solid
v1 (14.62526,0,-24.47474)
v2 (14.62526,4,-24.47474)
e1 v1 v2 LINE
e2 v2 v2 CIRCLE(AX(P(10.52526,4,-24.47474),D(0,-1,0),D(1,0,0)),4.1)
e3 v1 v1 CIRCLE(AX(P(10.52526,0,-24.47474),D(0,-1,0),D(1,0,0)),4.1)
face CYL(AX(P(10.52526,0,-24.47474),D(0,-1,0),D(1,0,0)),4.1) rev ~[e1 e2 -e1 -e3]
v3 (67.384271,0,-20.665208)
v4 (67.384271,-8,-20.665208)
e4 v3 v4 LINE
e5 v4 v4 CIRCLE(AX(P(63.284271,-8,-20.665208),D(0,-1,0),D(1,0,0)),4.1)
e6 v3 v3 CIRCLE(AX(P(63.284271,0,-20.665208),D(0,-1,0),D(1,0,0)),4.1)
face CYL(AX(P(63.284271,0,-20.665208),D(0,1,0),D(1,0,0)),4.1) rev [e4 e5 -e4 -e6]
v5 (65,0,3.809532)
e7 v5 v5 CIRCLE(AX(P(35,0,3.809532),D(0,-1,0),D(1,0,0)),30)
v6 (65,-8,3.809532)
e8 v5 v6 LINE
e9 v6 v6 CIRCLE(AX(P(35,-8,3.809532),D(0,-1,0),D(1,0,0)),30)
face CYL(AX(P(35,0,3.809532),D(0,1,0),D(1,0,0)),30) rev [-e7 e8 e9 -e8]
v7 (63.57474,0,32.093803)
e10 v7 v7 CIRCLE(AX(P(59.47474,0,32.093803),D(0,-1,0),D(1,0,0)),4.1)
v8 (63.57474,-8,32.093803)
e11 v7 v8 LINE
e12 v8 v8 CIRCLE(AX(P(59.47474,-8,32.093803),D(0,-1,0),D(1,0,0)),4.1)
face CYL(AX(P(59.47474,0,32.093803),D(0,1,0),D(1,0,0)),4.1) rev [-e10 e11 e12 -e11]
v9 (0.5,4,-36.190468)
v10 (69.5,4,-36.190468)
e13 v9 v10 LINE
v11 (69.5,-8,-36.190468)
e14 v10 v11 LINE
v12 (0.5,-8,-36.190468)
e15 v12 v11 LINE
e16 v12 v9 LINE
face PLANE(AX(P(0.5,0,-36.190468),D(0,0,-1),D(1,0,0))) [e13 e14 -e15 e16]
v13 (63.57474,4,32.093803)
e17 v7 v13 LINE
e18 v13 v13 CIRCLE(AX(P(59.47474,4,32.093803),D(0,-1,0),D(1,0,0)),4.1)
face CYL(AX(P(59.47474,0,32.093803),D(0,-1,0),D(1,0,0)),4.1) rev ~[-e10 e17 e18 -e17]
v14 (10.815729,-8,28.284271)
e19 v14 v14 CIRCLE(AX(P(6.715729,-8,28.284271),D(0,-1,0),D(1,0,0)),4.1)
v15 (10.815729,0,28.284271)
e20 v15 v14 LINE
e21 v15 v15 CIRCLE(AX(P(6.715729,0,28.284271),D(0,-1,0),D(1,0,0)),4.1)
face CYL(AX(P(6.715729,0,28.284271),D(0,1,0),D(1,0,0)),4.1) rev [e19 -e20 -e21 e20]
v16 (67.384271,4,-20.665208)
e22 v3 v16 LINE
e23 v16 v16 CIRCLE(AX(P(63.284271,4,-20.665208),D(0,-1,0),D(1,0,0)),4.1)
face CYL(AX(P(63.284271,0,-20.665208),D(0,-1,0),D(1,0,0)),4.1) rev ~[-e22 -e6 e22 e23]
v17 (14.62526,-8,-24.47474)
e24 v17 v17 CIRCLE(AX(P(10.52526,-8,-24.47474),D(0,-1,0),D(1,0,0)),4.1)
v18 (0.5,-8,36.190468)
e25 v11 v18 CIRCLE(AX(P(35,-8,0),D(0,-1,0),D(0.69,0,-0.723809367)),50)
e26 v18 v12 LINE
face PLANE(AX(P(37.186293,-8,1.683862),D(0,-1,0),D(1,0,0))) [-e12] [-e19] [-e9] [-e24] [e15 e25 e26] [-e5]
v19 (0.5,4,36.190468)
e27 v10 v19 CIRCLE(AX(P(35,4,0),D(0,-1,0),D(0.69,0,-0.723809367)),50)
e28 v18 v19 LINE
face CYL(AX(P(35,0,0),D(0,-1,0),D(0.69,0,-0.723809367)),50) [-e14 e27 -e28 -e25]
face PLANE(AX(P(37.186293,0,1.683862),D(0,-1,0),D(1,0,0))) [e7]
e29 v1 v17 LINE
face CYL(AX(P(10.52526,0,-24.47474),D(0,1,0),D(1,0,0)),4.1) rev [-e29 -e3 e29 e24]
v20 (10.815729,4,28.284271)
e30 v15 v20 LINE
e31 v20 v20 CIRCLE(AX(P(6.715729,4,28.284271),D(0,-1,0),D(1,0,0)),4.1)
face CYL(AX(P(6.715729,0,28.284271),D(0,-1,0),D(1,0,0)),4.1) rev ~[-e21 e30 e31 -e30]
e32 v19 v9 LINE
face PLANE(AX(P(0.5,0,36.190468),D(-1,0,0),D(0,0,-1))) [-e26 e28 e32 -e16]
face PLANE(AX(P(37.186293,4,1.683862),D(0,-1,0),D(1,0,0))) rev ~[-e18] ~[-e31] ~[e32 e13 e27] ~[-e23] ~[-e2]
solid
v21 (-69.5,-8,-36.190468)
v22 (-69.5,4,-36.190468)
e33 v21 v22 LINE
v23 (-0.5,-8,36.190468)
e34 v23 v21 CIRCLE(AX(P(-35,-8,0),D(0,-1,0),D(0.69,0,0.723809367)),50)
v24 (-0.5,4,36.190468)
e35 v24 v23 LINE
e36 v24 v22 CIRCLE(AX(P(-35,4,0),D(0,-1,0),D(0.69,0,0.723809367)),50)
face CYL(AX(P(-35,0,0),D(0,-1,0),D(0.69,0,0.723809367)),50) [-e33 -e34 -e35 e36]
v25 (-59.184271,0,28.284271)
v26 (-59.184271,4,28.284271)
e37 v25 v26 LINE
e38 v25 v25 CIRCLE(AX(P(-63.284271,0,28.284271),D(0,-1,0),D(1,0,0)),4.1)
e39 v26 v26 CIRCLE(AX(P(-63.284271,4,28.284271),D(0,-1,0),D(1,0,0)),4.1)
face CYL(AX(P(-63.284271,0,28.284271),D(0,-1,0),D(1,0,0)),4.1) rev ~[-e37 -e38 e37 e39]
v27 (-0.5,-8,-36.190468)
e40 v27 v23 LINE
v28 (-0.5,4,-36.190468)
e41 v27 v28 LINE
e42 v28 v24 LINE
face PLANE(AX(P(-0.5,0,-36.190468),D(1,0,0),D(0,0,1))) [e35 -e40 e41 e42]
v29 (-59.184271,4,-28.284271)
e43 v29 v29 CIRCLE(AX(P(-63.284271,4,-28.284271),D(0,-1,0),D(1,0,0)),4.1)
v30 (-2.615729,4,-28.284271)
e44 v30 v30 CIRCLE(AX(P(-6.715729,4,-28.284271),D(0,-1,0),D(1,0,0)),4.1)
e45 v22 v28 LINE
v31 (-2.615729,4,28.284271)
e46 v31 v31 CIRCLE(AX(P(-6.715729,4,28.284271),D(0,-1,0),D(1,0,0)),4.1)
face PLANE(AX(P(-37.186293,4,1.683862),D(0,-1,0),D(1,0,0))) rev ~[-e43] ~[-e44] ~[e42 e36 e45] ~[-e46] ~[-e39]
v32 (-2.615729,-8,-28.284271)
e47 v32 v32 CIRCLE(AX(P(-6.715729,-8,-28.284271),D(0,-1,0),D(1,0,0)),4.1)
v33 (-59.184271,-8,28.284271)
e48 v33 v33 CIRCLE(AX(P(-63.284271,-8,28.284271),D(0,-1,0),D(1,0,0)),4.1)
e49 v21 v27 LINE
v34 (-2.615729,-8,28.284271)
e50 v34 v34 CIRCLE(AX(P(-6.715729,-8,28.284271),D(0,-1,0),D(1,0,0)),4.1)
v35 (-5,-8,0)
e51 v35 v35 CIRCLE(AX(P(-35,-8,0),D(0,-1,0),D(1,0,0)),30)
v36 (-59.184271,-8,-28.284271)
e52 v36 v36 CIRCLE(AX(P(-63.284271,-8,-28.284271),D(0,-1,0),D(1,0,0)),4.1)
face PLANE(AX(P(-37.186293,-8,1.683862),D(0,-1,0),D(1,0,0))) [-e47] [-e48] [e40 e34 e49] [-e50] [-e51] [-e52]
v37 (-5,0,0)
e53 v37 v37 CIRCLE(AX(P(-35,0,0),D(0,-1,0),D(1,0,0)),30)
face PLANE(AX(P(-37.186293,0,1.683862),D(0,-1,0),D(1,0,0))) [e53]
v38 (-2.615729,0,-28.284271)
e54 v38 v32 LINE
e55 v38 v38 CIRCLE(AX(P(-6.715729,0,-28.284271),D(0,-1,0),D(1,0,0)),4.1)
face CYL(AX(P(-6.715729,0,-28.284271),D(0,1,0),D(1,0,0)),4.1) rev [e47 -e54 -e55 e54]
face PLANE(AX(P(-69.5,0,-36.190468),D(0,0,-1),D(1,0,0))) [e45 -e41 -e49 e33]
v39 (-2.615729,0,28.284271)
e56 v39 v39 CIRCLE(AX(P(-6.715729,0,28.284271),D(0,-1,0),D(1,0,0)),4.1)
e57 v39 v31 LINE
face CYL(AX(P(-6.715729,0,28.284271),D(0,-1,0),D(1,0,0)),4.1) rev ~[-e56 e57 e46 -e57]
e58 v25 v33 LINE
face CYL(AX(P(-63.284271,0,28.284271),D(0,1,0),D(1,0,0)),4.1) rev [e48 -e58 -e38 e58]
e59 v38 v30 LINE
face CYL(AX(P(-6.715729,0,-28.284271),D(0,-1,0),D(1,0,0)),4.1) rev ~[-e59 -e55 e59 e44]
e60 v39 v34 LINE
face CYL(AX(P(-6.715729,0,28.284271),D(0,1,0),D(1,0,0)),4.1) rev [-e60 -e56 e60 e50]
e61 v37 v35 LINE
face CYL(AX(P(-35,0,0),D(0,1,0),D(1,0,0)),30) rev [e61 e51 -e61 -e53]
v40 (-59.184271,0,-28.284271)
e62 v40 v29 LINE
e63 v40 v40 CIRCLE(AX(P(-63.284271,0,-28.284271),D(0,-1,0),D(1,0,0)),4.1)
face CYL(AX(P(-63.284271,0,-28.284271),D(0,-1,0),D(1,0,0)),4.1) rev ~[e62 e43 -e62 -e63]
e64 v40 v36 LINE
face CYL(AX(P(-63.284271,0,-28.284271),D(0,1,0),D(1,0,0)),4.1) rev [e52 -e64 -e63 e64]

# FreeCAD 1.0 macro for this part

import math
import FreeCAD as App
import Part
import Sketcher
Q = App.Units.Quantity

doc = App.newDocument("Part")
body = doc.addObject("PartDesign::Body", "Body")

# Sketch on XZ plane
sketch1 = body.newObject("Sketcher::SketchObject", "Sketch")
sketch1.AttachmentSupport = (doc.getObject("XZ_Plane"), [""])
sketch1.MapMode = "FlatFace"
sketch1.addGeometry(Part.LineSegment(App.Vector(-0.5, -36.2, 0), App.Vector(-0.5, 36.2, 0)), False)
sketch1.addGeometry(Part.ArcOfCircle(Part.Circle(App.Vector(-35, 0, 0), App.Vector(0, 0, 1), 50), math.radians(46), math.radians(226)), False)
sketch1.addGeometry(Part.LineSegment(App.Vector(-69.5, -36.2, 0), App.Vector(-0.5, -36.2, 0)), False)
sketch1.addGeometry(Part.Circle(App.Vector(-63.3, -28.3, 0), App.Vector(0, 0, 1), 4.1), False)
sketch1.addGeometry(Part.Circle(App.Vector(-6.7, -28.3, 0), App.Vector(0, 0, 1), 4.1), False)
sketch1.addGeometry(Part.Circle(App.Vector(-63.3, 28.3, 0), App.Vector(0, 0, 1), 4.1), False)
sketch1.addGeometry(Part.Circle(App.Vector(-35, 0, 0), App.Vector(0, 0, 1), 30), False)
sketch1.addGeometry(Part.Circle(App.Vector(-6.7, 28.3, 0), App.Vector(0, 0, 1), 4.1), False)
sketch1.addConstraint(Sketcher.Constraint("Coincident", 0, 2, 1, 1))
sketch1.addConstraint(Sketcher.Constraint("Coincident", 1, 2, 2, 1))
sketch1.addConstraint(Sketcher.Constraint("Coincident", 2, 2, 0, 1))
sketch1.addConstraint(Sketcher.Constraint("Vertical", 0))
sketch1.addConstraint(Sketcher.Constraint("Horizontal", 2))
sketch1.addConstraint(Sketcher.Constraint("Coincident", 6, 3, 1, 3))
sketch1.addConstraint(Sketcher.Constraint("Equal", 3, 4))
sketch1.addConstraint(Sketcher.Constraint("Equal", 4, 5))
sketch1.addConstraint(Sketcher.Constraint("Equal", 5, 7))
sketch1.addConstraint(Sketcher.Constraint("Symmetric", 3, 3, 5, 3, -1))
sketch1.addConstraint(Sketcher.Constraint("Symmetric", 4, 3, 7, 3, -1))
sketch1.addConstraint(Sketcher.Constraint("PointOnObject", 1, 3, -1))
sketch1.addConstraint(Sketcher.Constraint("Horizontal", 3, 3, 4, 3))
sketch1.addConstraint(Sketcher.Constraint("Diameter", 6, Q("60 mm")))
sketch1.addConstraint(Sketcher.Constraint("Radius", 1, Q("50 mm")))
sketch1.addConstraint(Sketcher.Constraint("Diameter", 3, Q("8.2 mm")))
sketch1.addConstraint(Sketcher.Constraint("DistanceX", 2, 1, 2, 2, Q("69 mm")))
sketch1.addConstraint(Sketcher.Constraint("DistanceX", 1, 3, -1, 1, Q("35 mm")))
sketch1.addConstraint(Sketcher.Constraint("DistanceX", 0, 2, -1, 1, Q("0.5 mm")))
sketch1.addConstraint(Sketcher.Constraint("DistanceX", 3, 3, -1, 1, Q("63.284271 mm")))
sketch1.addConstraint(Sketcher.Constraint("DistanceY", 3, 3, -1, 1, Q("28.284271 mm")))
sketch1.addConstraint(Sketcher.Constraint("DistanceX", 4, 3, -1, 1, Q("6.715729 mm")))
pad1 = body.newObject("PartDesign::Pad", "Pad")
pad1.Profile = sketch1
pad1.Length = 8

# Sketch on XZ plane
sketch2 = body.newObject("Sketcher::SketchObject", "Sketch001")
sketch2.AttachmentSupport = (doc.getObject("XZ_Plane"), [""])
sketch2.MapMode = "FlatFace"
sketch2.addGeometry(Part.LineSegment(App.Vector(-0.5, -36.2, 0), App.Vector(-0.5, 36.2, 0)), False)
sketch2.addGeometry(Part.ArcOfCircle(Part.Circle(App.Vector(-35, 0, 0), App.Vector(0, 0, 1), 50), math.radians(46), math.radians(226)), False)
sketch2.addGeometry(Part.LineSegment(App.Vector(-69.5, -36.2, 0), App.Vector(-0.5, -36.2, 0)), False)
sketch2.addGeometry(Part.Circle(App.Vector(-63.3, -28.3, 0), App.Vector(0, 0, 1), 4.1), False)
sketch2.addGeometry(Part.Circle(App.Vector(-6.7, -28.3, 0), App.Vector(0, 0, 1), 4.1), False)
sketch2.addGeometry(Part.Circle(App.Vector(-63.3, 28.3, 0), App.Vector(0, 0, 1), 4.1), False)
sketch2.addGeometry(Part.Circle(App.Vector(-6.7, 28.3, 0), App.Vector(0, 0, 1), 4.1), False)
sketch2.addConstraint(Sketcher.Constraint("Coincident", 0, 2, 1, 1))
sketch2.addConstraint(Sketcher.Constraint("Coincident", 1, 2, 2, 1))
sketch2.addConstraint(Sketcher.Constraint("Coincident", 2, 2, 0, 1))
sketch2.addConstraint(Sketcher.Constraint("Vertical", 0))
sketch2.addConstraint(Sketcher.Constraint("Horizontal", 2))
sketch2.addConstraint(Sketcher.Constraint("Equal", 3, 4))
sketch2.addConstraint(Sketcher.Constraint("Equal", 4, 5))
sketch2.addConstraint(Sketcher.Constraint("Equal", 5, 6))
sketch2.addConstraint(Sketcher.Constraint("Symmetric", 3, 3, 5, 3, -1))
sketch2.addConstraint(Sketcher.Constraint("Symmetric", 4, 3, 6, 3, -1))
sketch2.addConstraint(Sketcher.Constraint("PointOnObject", 1, 3, -1))
sketch2.addConstraint(Sketcher.Constraint("Horizontal", 3, 3, 4, 3))
sketch2.addConstraint(Sketcher.Constraint("Radius", 1, Q("50 mm")))
sketch2.addConstraint(Sketcher.Constraint("Diameter", 3, Q("8.2 mm")))
sketch2.addConstraint(Sketcher.Constraint("DistanceX", 2, 1, 2, 2, Q("69 mm")))
sketch2.addConstraint(Sketcher.Constraint("DistanceX", 1, 3, -1, 1, Q("35 mm")))
sketch2.addConstraint(Sketcher.Constraint("DistanceX", 0, 2, -1, 1, Q("0.5 mm")))
sketch2.addConstraint(Sketcher.Constraint("DistanceX", 3, 3, -1, 1, Q("63.284271 mm")))
sketch2.addConstraint(Sketcher.Constraint("DistanceY", 3, 3, -1, 1, Q("28.284271 mm")))
sketch2.addConstraint(Sketcher.Constraint("DistanceX", 4, 3, -1, 1, Q("6.715729 mm")))
pad2 = body.newObject("PartDesign::Pad", "Pad001")
pad2.Profile = sketch2
pad2.Length = 4
pad2.Reversed = True
body2 = doc.addObject("PartDesign::Body", "Body001")

# Sketch on XZ plane
sketch3 = body2.newObject("Sketcher::SketchObject", "Sketch002")
sketch3.AttachmentSupport = (doc.getObject("XZ_Plane001"), [""])
sketch3.MapMode = "FlatFace"
sketch3.addGeometry(Part.LineSegment(App.Vector(0.5, -36.2, 0), App.Vector(69.5, -36.2, 0)), False)
sketch3.addGeometry(Part.ArcOfCircle(Part.Circle(App.Vector(35, 0, 0), App.Vector(0, 0, 1), 50), math.radians(-46), math.radians(134)), False)
sketch3.addGeometry(Part.LineSegment(App.Vector(0.5, 36.2, 0), App.Vector(0.5, -36.2, 0)), False)
sketch3.addGeometry(Part.Circle(App.Vector(10.5, -24.5, 0), App.Vector(0, 0, 1), 4.1), False)
sketch3.addGeometry(Part.Circle(App.Vector(63.3, -20.7, 0), App.Vector(0, 0, 1), 4.1), False)
sketch3.addGeometry(Part.Circle(App.Vector(6.7, 28.3, 0), App.Vector(0, 0, 1), 4.1), False)
sketch3.addGeometry(Part.Circle(App.Vector(35, 3.8, 0), App.Vector(0, 0, 1), 30), False)
sketch3.addGeometry(Part.Circle(App.Vector(59.5, 32.1, 0), App.Vector(0, 0, 1), 4.1), False)
sketch3.addConstraint(Sketcher.Constraint("Coincident", 0, 2, 1, 1))
sketch3.addConstraint(Sketcher.Constraint("Coincident", 1, 2, 2, 1))
sketch3.addConstraint(Sketcher.Constraint("Coincident", 2, 2, 0, 1))
sketch3.addConstraint(Sketcher.Constraint("Horizontal", 0))
sketch3.addConstraint(Sketcher.Constraint("Vertical", 2))
sketch3.addConstraint(Sketcher.Constraint("Equal", 3, 4))
sketch3.addConstraint(Sketcher.Constraint("Equal", 4, 5))
sketch3.addConstraint(Sketcher.Constraint("Equal", 5, 7))
sketch3.addConstraint(Sketcher.Constraint("PointOnObject", 1, 3, -1))
sketch3.addConstraint(Sketcher.Constraint("Vertical", 1, 3, 6, 3))
sketch3.addConstraint(Sketcher.Constraint("Diameter", 6, Q("60 mm")))
sketch3.addConstraint(Sketcher.Constraint("Radius", 1, Q("50 mm")))
sketch3.addConstraint(Sketcher.Constraint("Diameter", 3, Q("8.2 mm")))
sketch3.addConstraint(Sketcher.Constraint("DistanceX", 0, 1, 0, 2, Q("69 mm")))
sketch3.addConstraint(Sketcher.Constraint("DistanceX", -1, 1, 1, 3, Q("35 mm")))
sketch3.addConstraint(Sketcher.Constraint("DistanceY", 0, 2, 6, 3, Q("40 mm")))
sketch3.addConstraint(Sketcher.Constraint("DistanceX", -1, 1, 0, 2, Q("69.5 mm")))
sketch3.addConstraint(Sketcher.Constraint("DistanceX", -1, 1, 3, 3, Q("10.52526 mm")))
sketch3.addConstraint(Sketcher.Constraint("DistanceY", 3, 3, -1, 1, Q("24.47474 mm")))
sketch3.addConstraint(Sketcher.Constraint("DistanceX", -1, 1, 4, 3, Q("63.284271 mm")))
sketch3.addConstraint(Sketcher.Constraint("DistanceX", -1, 1, 5, 3, Q("6.715729 mm")))
sketch3.addConstraint(Sketcher.Constraint("DistanceY", -1, 1, 5, 3, Q("28.284271 mm")))
sketch3.addConstraint(Sketcher.Constraint("DistanceX", -1, 1, 7, 3, Q("59.47474 mm")))
sketch3.addConstraint(Sketcher.Constraint("DistanceY", 3, 3, 4, 3, Q("3.809532 mm")))
sketch3.addConstraint(Sketcher.Constraint("DistanceY", 6, 3, 7, 3, Q("28.284271 mm")))
pad3 = body2.newObject("PartDesign::Pad", "Pad002")
pad3.Profile = sketch3
pad3.Length = 8

# Sketch on XZ plane
sketch4 = body2.newObject("Sketcher::SketchObject", "Sketch003")
sketch4.AttachmentSupport = (doc.getObject("XZ_Plane001"), [""])
sketch4.MapMode = "FlatFace"
sketch4.addGeometry(Part.LineSegment(App.Vector(0.5, -36.2, 0), App.Vector(69.5, -36.2, 0)), False)
sketch4.addGeometry(Part.ArcOfCircle(Part.Circle(App.Vector(35, 0, 0), App.Vector(0, 0, 1), 50), math.radians(-46), math.radians(134)), False)
sketch4.addGeometry(Part.LineSegment(App.Vector(0.5, 36.2, 0), App.Vector(0.5, -36.2, 0)), False)
sketch4.addGeometry(Part.Circle(App.Vector(10.5, -24.5, 0), App.Vector(0, 0, 1), 4.1), False)
sketch4.addGeometry(Part.Circle(App.Vector(63.3, -20.7, 0), App.Vector(0, 0, 1), 4.1), False)
sketch4.addGeometry(Part.Circle(App.Vector(6.7, 28.3, 0), App.Vector(0, 0, 1), 4.1), False)
sketch4.addGeometry(Part.Circle(App.Vector(59.5, 32.1, 0), App.Vector(0, 0, 1), 4.1), False)
sketch4.addConstraint(Sketcher.Constraint("Coincident", 0, 2, 1, 1))
sketch4.addConstraint(Sketcher.Constraint("Coincident", 1, 2, 2, 1))
sketch4.addConstraint(Sketcher.Constraint("Coincident", 2, 2, 0, 1))
sketch4.addConstraint(Sketcher.Constraint("Horizontal", 0))
sketch4.addConstraint(Sketcher.Constraint("Vertical", 2))
sketch4.addConstraint(Sketcher.Constraint("Equal", 3, 4))
sketch4.addConstraint(Sketcher.Constraint("Equal", 4, 5))
sketch4.addConstraint(Sketcher.Constraint("Equal", 5, 6))
sketch4.addConstraint(Sketcher.Constraint("PointOnObject", 1, 3, -1))
sketch4.addConstraint(Sketcher.Constraint("Radius", 1, Q("50 mm")))
sketch4.addConstraint(Sketcher.Constraint("Diameter", 3, Q("8.2 mm")))
sketch4.addConstraint(Sketcher.Constraint("DistanceX", 0, 1, 0, 2, Q("69 mm")))
sketch4.addConstraint(Sketcher.Constraint("DistanceX", -1, 1, 1, 3, Q("35 mm")))
sketch4.addConstraint(Sketcher.Constraint("DistanceX", -1, 1, 0, 2, Q("69.5 mm")))
sketch4.addConstraint(Sketcher.Constraint("DistanceX", -1, 1, 3, 3, Q("10.52526 mm")))
sketch4.addConstraint(Sketcher.Constraint("DistanceY", 3, 3, -1, 1, Q("24.47474 mm")))
sketch4.addConstraint(Sketcher.Constraint("DistanceX", -1, 1, 4, 3, Q("63.284271 mm")))
sketch4.addConstraint(Sketcher.Constraint("DistanceX", -1, 1, 5, 3, Q("6.715729 mm")))
sketch4.addConstraint(Sketcher.Constraint("DistanceY", -1, 1, 5, 3, Q("28.284271 mm")))
sketch4.addConstraint(Sketcher.Constraint("DistanceX", -1, 1, 6, 3, Q("59.47474 mm")))
sketch4.addConstraint(Sketcher.Constraint("DistanceY", 3, 3, 4, 3, Q("3.809532 mm")))
sketch4.addConstraint(Sketcher.Constraint("DistanceY", 4, 3, 6, 3, Q("52.759011 mm")))
pad4 = body2.newObject("PartDesign::Pad", "Pad003")
pad4.Profile = sketch4
pad4.Length = 4
pad4.Reversed = True

doc.recompute()
